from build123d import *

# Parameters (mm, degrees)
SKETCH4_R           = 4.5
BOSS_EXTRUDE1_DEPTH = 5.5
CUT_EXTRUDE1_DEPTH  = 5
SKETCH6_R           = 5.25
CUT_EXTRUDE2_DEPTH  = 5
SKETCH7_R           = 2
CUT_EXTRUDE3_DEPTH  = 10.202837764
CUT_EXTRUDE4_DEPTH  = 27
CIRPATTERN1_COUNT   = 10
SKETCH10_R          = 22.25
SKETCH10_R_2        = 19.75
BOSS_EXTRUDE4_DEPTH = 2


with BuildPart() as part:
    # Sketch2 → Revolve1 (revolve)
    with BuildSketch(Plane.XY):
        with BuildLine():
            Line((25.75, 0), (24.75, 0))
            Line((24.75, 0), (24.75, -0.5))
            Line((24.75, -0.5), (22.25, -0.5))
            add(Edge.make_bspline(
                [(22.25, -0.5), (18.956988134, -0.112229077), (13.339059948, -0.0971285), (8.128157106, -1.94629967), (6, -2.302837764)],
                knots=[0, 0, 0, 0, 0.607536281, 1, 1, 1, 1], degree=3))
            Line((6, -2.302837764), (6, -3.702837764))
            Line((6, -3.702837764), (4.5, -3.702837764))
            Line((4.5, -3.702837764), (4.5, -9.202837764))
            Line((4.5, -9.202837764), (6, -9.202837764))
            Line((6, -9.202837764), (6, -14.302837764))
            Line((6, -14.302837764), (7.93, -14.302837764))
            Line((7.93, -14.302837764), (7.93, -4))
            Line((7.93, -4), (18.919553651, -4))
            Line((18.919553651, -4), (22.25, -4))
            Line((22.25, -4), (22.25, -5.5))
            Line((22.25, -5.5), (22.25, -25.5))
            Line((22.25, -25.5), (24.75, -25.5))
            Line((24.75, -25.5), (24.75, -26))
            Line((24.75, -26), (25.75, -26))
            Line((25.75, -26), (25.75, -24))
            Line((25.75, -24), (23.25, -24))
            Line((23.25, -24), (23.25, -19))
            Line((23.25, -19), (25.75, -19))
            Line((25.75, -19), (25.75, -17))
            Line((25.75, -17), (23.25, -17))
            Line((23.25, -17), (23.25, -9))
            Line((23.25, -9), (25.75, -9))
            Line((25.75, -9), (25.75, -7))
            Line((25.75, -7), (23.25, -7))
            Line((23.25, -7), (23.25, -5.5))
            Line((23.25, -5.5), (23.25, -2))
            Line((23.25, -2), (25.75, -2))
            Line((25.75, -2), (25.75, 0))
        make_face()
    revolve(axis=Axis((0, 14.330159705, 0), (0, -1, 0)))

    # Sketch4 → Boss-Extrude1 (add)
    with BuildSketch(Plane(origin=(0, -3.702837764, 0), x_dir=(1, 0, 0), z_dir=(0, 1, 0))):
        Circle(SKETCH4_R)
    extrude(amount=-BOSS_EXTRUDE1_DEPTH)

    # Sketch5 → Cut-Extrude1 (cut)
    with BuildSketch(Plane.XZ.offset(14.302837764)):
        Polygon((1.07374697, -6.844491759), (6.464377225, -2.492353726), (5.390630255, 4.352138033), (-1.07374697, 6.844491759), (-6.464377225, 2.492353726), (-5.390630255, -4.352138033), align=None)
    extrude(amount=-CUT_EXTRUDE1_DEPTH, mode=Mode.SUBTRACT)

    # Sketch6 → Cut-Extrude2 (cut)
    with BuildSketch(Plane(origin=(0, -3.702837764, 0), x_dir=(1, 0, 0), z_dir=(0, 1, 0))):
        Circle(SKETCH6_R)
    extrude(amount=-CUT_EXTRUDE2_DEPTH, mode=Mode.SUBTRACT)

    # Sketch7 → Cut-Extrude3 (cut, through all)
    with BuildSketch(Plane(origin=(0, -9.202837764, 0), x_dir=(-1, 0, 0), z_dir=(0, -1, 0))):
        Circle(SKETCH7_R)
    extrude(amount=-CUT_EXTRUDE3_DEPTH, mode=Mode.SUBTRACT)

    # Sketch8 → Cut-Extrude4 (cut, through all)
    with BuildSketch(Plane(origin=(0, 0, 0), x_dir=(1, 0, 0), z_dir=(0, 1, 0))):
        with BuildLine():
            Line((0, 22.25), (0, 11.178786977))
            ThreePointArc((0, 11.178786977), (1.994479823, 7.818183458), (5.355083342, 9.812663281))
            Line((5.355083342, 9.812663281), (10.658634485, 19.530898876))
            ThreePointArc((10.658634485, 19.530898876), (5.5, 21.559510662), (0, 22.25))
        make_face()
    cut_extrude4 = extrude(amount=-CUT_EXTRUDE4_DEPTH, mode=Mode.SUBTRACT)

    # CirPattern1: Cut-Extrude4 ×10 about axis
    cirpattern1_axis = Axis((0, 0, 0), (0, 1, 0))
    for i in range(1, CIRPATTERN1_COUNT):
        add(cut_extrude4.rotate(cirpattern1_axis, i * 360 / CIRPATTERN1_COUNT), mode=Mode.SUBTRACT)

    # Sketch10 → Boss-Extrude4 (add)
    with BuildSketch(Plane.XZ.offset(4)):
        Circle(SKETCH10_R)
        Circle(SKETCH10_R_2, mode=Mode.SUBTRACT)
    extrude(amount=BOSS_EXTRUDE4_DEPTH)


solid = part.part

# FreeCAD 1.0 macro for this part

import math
import FreeCAD as App
import Part
import Sketcher

V = App.Vector


def add_polygon(sketch, points):
    """Adds a closed chain of lines whose ends are joined by coincident constraints."""
    first, n = sketch.GeometryCount, len(points)
    for a, b in zip(points, points[1:] + points[:1]):
        sketch.addGeometry(Part.LineSegment(App.Vector(*a, 0), App.Vector(*b, 0)), False)
    for i in range(n):
        sketch.addConstraint(Sketcher.Constraint("Coincident", first + i, 2, first + (i + 1) % n, 1))

doc = App.newDocument("Part")
body = doc.addObject("PartDesign::Body", "Body")

sketch1 = body.newObject("Sketcher::SketchObject", "Sketch")
sketch1.AttachmentSupport = (doc.getObject("XY_Plane"), [""])
sketch1.MapMode = "FlatFace"
sketch1.addGeometry([
    Part.LineSegment(V(25.75, 0, 0), V(24.75, 0, 0)),
    Part.LineSegment(V(24.75, 0, 0), V(24.75, -0.5, 0)),
    Part.LineSegment(V(24.75, -0.5, 0), V(22.25, -0.5, 0)),
    Part.BSplineCurve([V(22.25, -0.5, 0), V(18.956988, -0.112229, 0), V(13.33906, -0.097129, 0), V(8.128157, -1.9463, 0), V(6, -2.302838, 0)], [4, 1, 4], [0, 0.607536281, 1], False, 3, [1, 1, 1, 1, 1], False),
    Part.LineSegment(V(6, -2.302838, 0), V(6, -3.702838, 0)),
    Part.LineSegment(V(6, -3.702838, 0), V(4.5, -3.702838, 0)),
    Part.LineSegment(V(4.5, -3.702838, 0), V(4.5, -9.202838, 0)),
    Part.LineSegment(V(4.5, -9.202838, 0), V(6, -9.202838, 0)),
    Part.LineSegment(V(6, -9.202838, 0), V(6, -14.302838, 0)),
    Part.LineSegment(V(6, -14.302838, 0), V(7.93, -14.302838, 0)),
    Part.LineSegment(V(7.93, -14.302838, 0), V(7.93, -4, 0)),
    Part.LineSegment(V(7.93, -4, 0), V(22.25, -4, 0)),
    Part.LineSegment(V(22.25, -4, 0), V(22.25, -25.5, 0)),
    Part.LineSegment(V(22.25, -25.5, 0), V(24.75, -25.5, 0)),
    Part.LineSegment(V(24.75, -25.5, 0), V(24.75, -26, 0)),
    Part.LineSegment(V(24.75, -26, 0), V(25.75, -26, 0)),
    Part.LineSegment(V(25.75, -26, 0), V(25.75, -24, 0)),
    Part.LineSegment(V(25.75, -24, 0), V(23.25, -24, 0)),
    Part.LineSegment(V(23.25, -24, 0), V(23.25, -19, 0)),
    Part.LineSegment(V(23.25, -19, 0), V(25.75, -19, 0)),
    Part.LineSegment(V(25.75, -19, 0), V(25.75, -17, 0)),
    Part.LineSegment(V(25.75, -17, 0), V(23.25, -17, 0)),
    Part.LineSegment(V(23.25, -17, 0), V(23.25, -9, 0)),
    Part.LineSegment(V(23.25, -9, 0), V(25.75, -9, 0)),
    Part.LineSegment(V(25.75, -9, 0), V(25.75, -7, 0)),
    Part.LineSegment(V(25.75, -7, 0), V(23.25, -7, 0)),
    Part.LineSegment(V(23.25, -7, 0), V(23.25, -2, 0)),
    Part.LineSegment(V(23.25, -2, 0), V(25.75, -2, 0)),
    Part.LineSegment(V(25.75, -2, 0), V(25.75, 0, 0)),
], False)
sketch1.addConstraint([
    Sketcher.Constraint("Block", 3),
    Sketcher.Constraint("Coincident", 0, 2, 1, 1),
    Sketcher.Constraint("Coincident", 1, 2, 2, 1),
    Sketcher.Constraint("Coincident", 2, 2, 3, 1),
    Sketcher.Constraint("Coincident", 3, 2, 4, 1),
    Sketcher.Constraint("Coincident", 4, 2, 5, 1),
    Sketcher.Constraint("Coincident", 5, 2, 6, 1),
    Sketcher.Constraint("Coincident", 6, 2, 7, 1),
    Sketcher.Constraint("Coincident", 7, 2, 8, 1),
    Sketcher.Constraint("Coincident", 8, 2, 9, 1),
    Sketcher.Constraint("Coincident", 9, 2, 10, 1),
    Sketcher.Constraint("Coincident", 10, 2, 11, 1),
    Sketcher.Constraint("Coincident", 11, 2, 12, 1),
    Sketcher.Constraint("Coincident", 12, 2, 13, 1),
    Sketcher.Constraint("Coincident", 13, 2, 14, 1),
    Sketcher.Constraint("Coincident", 14, 2, 15, 1),
    Sketcher.Constraint("Coincident", 15, 2, 16, 1),
    Sketcher.Constraint("Coincident", 16, 2, 17, 1),
    Sketcher.Constraint("Coincident", 17, 2, 18, 1),
    Sketcher.Constraint("Coincident", 18, 2, 19, 1),
    Sketcher.Constraint("Coincident", 19, 2, 20, 1),
    Sketcher.Constraint("Coincident", 20, 2, 21, 1),
    Sketcher.Constraint("Coincident", 21, 2, 22, 1),
    Sketcher.Constraint("Coincident", 22, 2, 23, 1),
    Sketcher.Constraint("Coincident", 23, 2, 24, 1),
    Sketcher.Constraint("Coincident", 24, 2, 25, 1),
    Sketcher.Constraint("Coincident", 25, 2, 26, 1),
    Sketcher.Constraint("Coincident", 26, 2, 27, 1),
    Sketcher.Constraint("Coincident", 27, 2, 28, 1),
    Sketcher.Constraint("Coincident", 28, 2, 0, 1),
    Sketcher.Constraint("Horizontal", 0),
    Sketcher.Constraint("Vertical", 1),
    Sketcher.Constraint("Horizontal", 2),
    Sketcher.Constraint("Vertical", 4),
    Sketcher.Constraint("Horizontal", 5),
    Sketcher.Constraint("Vertical", 6),
    Sketcher.Constraint("Horizontal", 7),
    Sketcher.Constraint("Vertical", 8),
    Sketcher.Constraint("Horizontal", 9),
    Sketcher.Constraint("Vertical", 10),
    Sketcher.Constraint("Horizontal", 11),
    Sketcher.Constraint("Vertical", 12),
    Sketcher.Constraint("Horizontal", 13),
    Sketcher.Constraint("Vertical", 14),
    Sketcher.Constraint("Horizontal", 15),
    Sketcher.Constraint("Vertical", 16),
    Sketcher.Constraint("Horizontal", 17),
    Sketcher.Constraint("Vertical", 18),
    Sketcher.Constraint("Horizontal", 19),
    Sketcher.Constraint("Vertical", 20),
    Sketcher.Constraint("Horizontal", 21),
    Sketcher.Constraint("Vertical", 22),
    Sketcher.Constraint("Horizontal", 23),
    Sketcher.Constraint("Vertical", 24),
    Sketcher.Constraint("Horizontal", 25),
    Sketcher.Constraint("Vertical", 26),
    Sketcher.Constraint("Horizontal", 27),
    Sketcher.Constraint("Vertical", 28),
    Sketcher.Constraint("PointOnObject", 0, 2, -1),
    Sketcher.Constraint("Vertical", 4, 2, 7, 2),
    Sketcher.Constraint("Vertical", 2, 2, 11, 2),
    Sketcher.Constraint("Vertical", 1, 2, 13, 2),
    Sketcher.Constraint("Vertical", 16, 2, 19, 2),
    Sketcher.Constraint("Vertical", 18, 2, 21, 2),
    Sketcher.Constraint("Vertical", 20, 2, 23, 2),
    Sketcher.Constraint("Vertical", 22, 2, 25, 2),
    Sketcher.Constraint("Vertical", 24, 2, 27, 2),
    Sketcher.Constraint("Equal", 13, 17),
    Sketcher.Constraint("Equal", 1, 14),
    Sketcher.Constraint("Equal", 16, 20),
    Sketcher.Constraint("Equal", 20, 24),
    Sketcher.Constraint("Equal", 18, 26),
    Sketcher.Constraint("Equal", 24, 28),
    Sketcher.Constraint("DistanceX", 0, 2, 0, 1, 1.0),
    Sketcher.Constraint("DistanceY", 16, 1, 16, 2, 2.0),
    Sketcher.Constraint("DistanceY", 18, 1, 18, 2, 5.0),
    Sketcher.Constraint("DistanceY", 22, 1, 22, 2, 8.0),
    Sketcher.Constraint("DistanceX", 2, 2, 2, 1, 2.5),
    Sketcher.Constraint("DistanceX", 5, 2, 5, 1, 1.5),
    Sketcher.Constraint("DistanceY", 4, 2, 4, 1, 1.4),
    Sketcher.Constraint("DistanceY", 6, 2, 6, 1, 5.5),
    Sketcher.Constraint("DistanceY", 8, 2, 8, 1, 5.1),
    Sketcher.Constraint("DistanceY", 12, 2, 12, 1, 21.5),
    Sketcher.Constraint("DistanceX", 9, 1, 9, 2, 1.93),
])
revolution = body.newObject("PartDesign::Revolution", "Revolution")
revolution.Profile = sketch1
revolution.ReferenceAxis = (sketch1, ["V_Axis"])
revolution.Angle = 360

sketch2 = body.newObject("Sketcher::SketchObject", "Sketch001")
sketch2.AttachmentSupport = (doc.getObject("XZ_Plane"), [""])
sketch2.MapMode = "FlatFace"
sketch2.AttachmentOffset = App.Placement(V(0, 0, 3.702838), App.Rotation())
sketch2.addGeometry(Part.Circle(V(0, 0, 0), V(0, 0, 1), 4.5), False)
sketch2.addConstraint([
    Sketcher.Constraint("Coincident", 0, 3, -1, 1),
    Sketcher.Constraint("Diameter", 0, 9.0),
])
pad1 = body.newObject("PartDesign::Pad", "Pad")
pad1.Profile = sketch2
pad1.Length = 5.5

sketch3 = body.newObject("Sketcher::SketchObject", "Sketch002")
sketch3.AttachmentSupport = (doc.getObject("XZ_Plane"), [""])
sketch3.MapMode = "FlatFace"
sketch3.AttachmentOffset = App.Placement(V(0, 0, 14.302838), App.Rotation())
add_polygon(sketch3, [(1.073747, -6.844492), (6.464377, -2.492354), (5.39063, 4.352138), (-1.073747, 6.844492), (-6.464377, 2.492354), (-5.39063, -4.352138)])
sketch3.addConstraint([
    Sketcher.Constraint("Symmetric", 0, 2, 3, 2, -1, 1),
    Sketcher.Constraint("Symmetric", 1, 2, 4, 2, -1, 1),
    Sketcher.Constraint("Symmetric", 2, 2, 5, 2, -1, 1),
    Sketcher.Constraint("Equal", 0, 1),
    Sketcher.Constraint("Equal", 1, 2),
    Sketcher.Constraint("DistanceX", -1, 1, 1, 2, 5.39063),
    Sketcher.Constraint("DistanceY", -1, 1, 1, 2, 4.352138),
    Sketcher.Constraint("DistanceY", -1, 1, 2, 2, 6.844492),
    Sketcher.Constraint("DistanceY", 0, 2, 1, 2, 6.844492),
])
pocket1 = body.newObject("PartDesign::Pocket", "Pocket")
pocket1.Profile = sketch3
pocket1.Length = 5

sketch4 = body.newObject("Sketcher::SketchObject", "Sketch003")
sketch4.AttachmentSupport = (doc.getObject("XZ_Plane"), [""])
sketch4.MapMode = "FlatFace"
sketch4.AttachmentOffset = App.Placement(V(0, 0, 3.702838), App.Rotation())
sketch4.addGeometry(Part.Circle(V(0, 0, 0), V(0, 0, 1), 5.25), False)
sketch4.addConstraint([
    Sketcher.Constraint("Coincident", 0, 3, -1, 1),
    Sketcher.Constraint("Diameter", 0, 10.5),
])
pocket2 = body.newObject("PartDesign::Pocket", "Pocket001")
pocket2.Profile = sketch4
pocket2.Length = 5
pocket2.Reversed = True

sketch5 = body.newObject("Sketcher::SketchObject", "Sketch004")
sketch5.AttachmentSupport = (doc.getObject("XZ_Plane"), [""])
sketch5.MapMode = "FlatFace"
sketch5.AttachmentOffset = App.Placement(V(0, 0, 9.202838), App.Rotation())
sketch5.addGeometry(Part.Circle(V(0, 0, 0), V(0, 0, 1), 2), False)
sketch5.addConstraint([
    Sketcher.Constraint("Coincident", 0, 3, -1, 1),
    Sketcher.Constraint("Diameter", 0, 4.0),
])
pocket3 = body.newObject("PartDesign::Pocket", "Pocket002")
pocket3.Profile = sketch5
pocket3.Type = "ThroughAll"

sketch6 = body.newObject("Sketcher::SketchObject", "Sketch005")
sketch6.AttachmentSupport = (doc.getObject("XZ_Plane"), [""])
sketch6.MapMode = "FlatFace"
sketch6.addGeometry([
    Part.LineSegment(V(0, -22.25, 0), V(0, -11.178787, 0)),
    Part.ArcOfCircle(Part.Circle(V(2.677542, -10.495725, 0), V(0, 0, 1), 2.763296), math.radians(14.311353), math.radians(194.311353)),
    Part.LineSegment(V(5.355083, -9.812663, 0), V(10.658634, -19.530899, 0)),
    Part.ArcOfCircle(Part.Circle(V(0, 0, 0), V(0, 0, 1), 22.25), math.radians(-90), math.radians(-61.377295)),
], False)
sketch6.addConstraint([
    Sketcher.Constraint("Coincident", 0, 2, 1, 2),
    Sketcher.Constraint("Coincident", 1, 1, 2, 1),
    Sketcher.Constraint("Coincident", 2, 2, 3, 2),
    Sketcher.Constraint("Coincident", 3, 1, 0, 1),
    Sketcher.Constraint("Vertical", 0),
    Sketcher.Constraint("Coincident", 3, 3, -1, 1),
    Sketcher.Constraint("PointOnObject", 0, 2, -2),
    Sketcher.Constraint("Radius", 3, 22.25),
    Sketcher.Constraint("Radius", 1, 2.763296),
    Sketcher.Constraint("DistanceY", 2, 2, -1, 1, 19.530899),
    Sketcher.Constraint("DistanceY", 0, 1, 0, 2, 11.071213),
    Sketcher.Constraint("DistanceX", -1, 1, 1, 3, 2.677542),
    Sketcher.Constraint("DistanceX", 1, 3, 1, 1, 2.677542),
])
pocket4 = body.newObject("PartDesign::Pocket", "Pocket003")
pocket4.Profile = sketch6
pocket4.Type = "ThroughAll"
pocket4.Reversed = True
doc.recompute()

polarpattern = body.newObject("PartDesign::PolarPattern", "PolarPattern")
polarpattern.Originals = [pocket4]
polarpattern.Axis = (doc.getObject("Y_Axis"), [""])
polarpattern.Angle = 360
polarpattern.Occurrences = 10
body.Tip = polarpattern

sketch7 = body.newObject("Sketcher::SketchObject", "Sketch006")
sketch7.AttachmentSupport = (doc.getObject("XZ_Plane"), [""])
sketch7.MapMode = "FlatFace"
sketch7.AttachmentOffset = App.Placement(V(0, 0, 4), App.Rotation())
sketch7.addGeometry([
    Part.Circle(V(0, 0, 0), V(0, 0, 1), 22.25),
    Part.Circle(V(0, 0, 0), V(0, 0, 1), 19.75),
], False)
sketch7.addConstraint([
    Sketcher.Constraint("Coincident", 0, 3, -1, 1),
    Sketcher.Constraint("Coincident", 1, 3, -1, 1),
    Sketcher.Constraint("Diameter", 0, 44.5),
    Sketcher.Constraint("Diameter", 1, 39.5),
])
pad2 = body.newObject("PartDesign::Pad", "Pad001")
pad2.Profile = sketch7
pad2.Length = 2

doc.recompute()
